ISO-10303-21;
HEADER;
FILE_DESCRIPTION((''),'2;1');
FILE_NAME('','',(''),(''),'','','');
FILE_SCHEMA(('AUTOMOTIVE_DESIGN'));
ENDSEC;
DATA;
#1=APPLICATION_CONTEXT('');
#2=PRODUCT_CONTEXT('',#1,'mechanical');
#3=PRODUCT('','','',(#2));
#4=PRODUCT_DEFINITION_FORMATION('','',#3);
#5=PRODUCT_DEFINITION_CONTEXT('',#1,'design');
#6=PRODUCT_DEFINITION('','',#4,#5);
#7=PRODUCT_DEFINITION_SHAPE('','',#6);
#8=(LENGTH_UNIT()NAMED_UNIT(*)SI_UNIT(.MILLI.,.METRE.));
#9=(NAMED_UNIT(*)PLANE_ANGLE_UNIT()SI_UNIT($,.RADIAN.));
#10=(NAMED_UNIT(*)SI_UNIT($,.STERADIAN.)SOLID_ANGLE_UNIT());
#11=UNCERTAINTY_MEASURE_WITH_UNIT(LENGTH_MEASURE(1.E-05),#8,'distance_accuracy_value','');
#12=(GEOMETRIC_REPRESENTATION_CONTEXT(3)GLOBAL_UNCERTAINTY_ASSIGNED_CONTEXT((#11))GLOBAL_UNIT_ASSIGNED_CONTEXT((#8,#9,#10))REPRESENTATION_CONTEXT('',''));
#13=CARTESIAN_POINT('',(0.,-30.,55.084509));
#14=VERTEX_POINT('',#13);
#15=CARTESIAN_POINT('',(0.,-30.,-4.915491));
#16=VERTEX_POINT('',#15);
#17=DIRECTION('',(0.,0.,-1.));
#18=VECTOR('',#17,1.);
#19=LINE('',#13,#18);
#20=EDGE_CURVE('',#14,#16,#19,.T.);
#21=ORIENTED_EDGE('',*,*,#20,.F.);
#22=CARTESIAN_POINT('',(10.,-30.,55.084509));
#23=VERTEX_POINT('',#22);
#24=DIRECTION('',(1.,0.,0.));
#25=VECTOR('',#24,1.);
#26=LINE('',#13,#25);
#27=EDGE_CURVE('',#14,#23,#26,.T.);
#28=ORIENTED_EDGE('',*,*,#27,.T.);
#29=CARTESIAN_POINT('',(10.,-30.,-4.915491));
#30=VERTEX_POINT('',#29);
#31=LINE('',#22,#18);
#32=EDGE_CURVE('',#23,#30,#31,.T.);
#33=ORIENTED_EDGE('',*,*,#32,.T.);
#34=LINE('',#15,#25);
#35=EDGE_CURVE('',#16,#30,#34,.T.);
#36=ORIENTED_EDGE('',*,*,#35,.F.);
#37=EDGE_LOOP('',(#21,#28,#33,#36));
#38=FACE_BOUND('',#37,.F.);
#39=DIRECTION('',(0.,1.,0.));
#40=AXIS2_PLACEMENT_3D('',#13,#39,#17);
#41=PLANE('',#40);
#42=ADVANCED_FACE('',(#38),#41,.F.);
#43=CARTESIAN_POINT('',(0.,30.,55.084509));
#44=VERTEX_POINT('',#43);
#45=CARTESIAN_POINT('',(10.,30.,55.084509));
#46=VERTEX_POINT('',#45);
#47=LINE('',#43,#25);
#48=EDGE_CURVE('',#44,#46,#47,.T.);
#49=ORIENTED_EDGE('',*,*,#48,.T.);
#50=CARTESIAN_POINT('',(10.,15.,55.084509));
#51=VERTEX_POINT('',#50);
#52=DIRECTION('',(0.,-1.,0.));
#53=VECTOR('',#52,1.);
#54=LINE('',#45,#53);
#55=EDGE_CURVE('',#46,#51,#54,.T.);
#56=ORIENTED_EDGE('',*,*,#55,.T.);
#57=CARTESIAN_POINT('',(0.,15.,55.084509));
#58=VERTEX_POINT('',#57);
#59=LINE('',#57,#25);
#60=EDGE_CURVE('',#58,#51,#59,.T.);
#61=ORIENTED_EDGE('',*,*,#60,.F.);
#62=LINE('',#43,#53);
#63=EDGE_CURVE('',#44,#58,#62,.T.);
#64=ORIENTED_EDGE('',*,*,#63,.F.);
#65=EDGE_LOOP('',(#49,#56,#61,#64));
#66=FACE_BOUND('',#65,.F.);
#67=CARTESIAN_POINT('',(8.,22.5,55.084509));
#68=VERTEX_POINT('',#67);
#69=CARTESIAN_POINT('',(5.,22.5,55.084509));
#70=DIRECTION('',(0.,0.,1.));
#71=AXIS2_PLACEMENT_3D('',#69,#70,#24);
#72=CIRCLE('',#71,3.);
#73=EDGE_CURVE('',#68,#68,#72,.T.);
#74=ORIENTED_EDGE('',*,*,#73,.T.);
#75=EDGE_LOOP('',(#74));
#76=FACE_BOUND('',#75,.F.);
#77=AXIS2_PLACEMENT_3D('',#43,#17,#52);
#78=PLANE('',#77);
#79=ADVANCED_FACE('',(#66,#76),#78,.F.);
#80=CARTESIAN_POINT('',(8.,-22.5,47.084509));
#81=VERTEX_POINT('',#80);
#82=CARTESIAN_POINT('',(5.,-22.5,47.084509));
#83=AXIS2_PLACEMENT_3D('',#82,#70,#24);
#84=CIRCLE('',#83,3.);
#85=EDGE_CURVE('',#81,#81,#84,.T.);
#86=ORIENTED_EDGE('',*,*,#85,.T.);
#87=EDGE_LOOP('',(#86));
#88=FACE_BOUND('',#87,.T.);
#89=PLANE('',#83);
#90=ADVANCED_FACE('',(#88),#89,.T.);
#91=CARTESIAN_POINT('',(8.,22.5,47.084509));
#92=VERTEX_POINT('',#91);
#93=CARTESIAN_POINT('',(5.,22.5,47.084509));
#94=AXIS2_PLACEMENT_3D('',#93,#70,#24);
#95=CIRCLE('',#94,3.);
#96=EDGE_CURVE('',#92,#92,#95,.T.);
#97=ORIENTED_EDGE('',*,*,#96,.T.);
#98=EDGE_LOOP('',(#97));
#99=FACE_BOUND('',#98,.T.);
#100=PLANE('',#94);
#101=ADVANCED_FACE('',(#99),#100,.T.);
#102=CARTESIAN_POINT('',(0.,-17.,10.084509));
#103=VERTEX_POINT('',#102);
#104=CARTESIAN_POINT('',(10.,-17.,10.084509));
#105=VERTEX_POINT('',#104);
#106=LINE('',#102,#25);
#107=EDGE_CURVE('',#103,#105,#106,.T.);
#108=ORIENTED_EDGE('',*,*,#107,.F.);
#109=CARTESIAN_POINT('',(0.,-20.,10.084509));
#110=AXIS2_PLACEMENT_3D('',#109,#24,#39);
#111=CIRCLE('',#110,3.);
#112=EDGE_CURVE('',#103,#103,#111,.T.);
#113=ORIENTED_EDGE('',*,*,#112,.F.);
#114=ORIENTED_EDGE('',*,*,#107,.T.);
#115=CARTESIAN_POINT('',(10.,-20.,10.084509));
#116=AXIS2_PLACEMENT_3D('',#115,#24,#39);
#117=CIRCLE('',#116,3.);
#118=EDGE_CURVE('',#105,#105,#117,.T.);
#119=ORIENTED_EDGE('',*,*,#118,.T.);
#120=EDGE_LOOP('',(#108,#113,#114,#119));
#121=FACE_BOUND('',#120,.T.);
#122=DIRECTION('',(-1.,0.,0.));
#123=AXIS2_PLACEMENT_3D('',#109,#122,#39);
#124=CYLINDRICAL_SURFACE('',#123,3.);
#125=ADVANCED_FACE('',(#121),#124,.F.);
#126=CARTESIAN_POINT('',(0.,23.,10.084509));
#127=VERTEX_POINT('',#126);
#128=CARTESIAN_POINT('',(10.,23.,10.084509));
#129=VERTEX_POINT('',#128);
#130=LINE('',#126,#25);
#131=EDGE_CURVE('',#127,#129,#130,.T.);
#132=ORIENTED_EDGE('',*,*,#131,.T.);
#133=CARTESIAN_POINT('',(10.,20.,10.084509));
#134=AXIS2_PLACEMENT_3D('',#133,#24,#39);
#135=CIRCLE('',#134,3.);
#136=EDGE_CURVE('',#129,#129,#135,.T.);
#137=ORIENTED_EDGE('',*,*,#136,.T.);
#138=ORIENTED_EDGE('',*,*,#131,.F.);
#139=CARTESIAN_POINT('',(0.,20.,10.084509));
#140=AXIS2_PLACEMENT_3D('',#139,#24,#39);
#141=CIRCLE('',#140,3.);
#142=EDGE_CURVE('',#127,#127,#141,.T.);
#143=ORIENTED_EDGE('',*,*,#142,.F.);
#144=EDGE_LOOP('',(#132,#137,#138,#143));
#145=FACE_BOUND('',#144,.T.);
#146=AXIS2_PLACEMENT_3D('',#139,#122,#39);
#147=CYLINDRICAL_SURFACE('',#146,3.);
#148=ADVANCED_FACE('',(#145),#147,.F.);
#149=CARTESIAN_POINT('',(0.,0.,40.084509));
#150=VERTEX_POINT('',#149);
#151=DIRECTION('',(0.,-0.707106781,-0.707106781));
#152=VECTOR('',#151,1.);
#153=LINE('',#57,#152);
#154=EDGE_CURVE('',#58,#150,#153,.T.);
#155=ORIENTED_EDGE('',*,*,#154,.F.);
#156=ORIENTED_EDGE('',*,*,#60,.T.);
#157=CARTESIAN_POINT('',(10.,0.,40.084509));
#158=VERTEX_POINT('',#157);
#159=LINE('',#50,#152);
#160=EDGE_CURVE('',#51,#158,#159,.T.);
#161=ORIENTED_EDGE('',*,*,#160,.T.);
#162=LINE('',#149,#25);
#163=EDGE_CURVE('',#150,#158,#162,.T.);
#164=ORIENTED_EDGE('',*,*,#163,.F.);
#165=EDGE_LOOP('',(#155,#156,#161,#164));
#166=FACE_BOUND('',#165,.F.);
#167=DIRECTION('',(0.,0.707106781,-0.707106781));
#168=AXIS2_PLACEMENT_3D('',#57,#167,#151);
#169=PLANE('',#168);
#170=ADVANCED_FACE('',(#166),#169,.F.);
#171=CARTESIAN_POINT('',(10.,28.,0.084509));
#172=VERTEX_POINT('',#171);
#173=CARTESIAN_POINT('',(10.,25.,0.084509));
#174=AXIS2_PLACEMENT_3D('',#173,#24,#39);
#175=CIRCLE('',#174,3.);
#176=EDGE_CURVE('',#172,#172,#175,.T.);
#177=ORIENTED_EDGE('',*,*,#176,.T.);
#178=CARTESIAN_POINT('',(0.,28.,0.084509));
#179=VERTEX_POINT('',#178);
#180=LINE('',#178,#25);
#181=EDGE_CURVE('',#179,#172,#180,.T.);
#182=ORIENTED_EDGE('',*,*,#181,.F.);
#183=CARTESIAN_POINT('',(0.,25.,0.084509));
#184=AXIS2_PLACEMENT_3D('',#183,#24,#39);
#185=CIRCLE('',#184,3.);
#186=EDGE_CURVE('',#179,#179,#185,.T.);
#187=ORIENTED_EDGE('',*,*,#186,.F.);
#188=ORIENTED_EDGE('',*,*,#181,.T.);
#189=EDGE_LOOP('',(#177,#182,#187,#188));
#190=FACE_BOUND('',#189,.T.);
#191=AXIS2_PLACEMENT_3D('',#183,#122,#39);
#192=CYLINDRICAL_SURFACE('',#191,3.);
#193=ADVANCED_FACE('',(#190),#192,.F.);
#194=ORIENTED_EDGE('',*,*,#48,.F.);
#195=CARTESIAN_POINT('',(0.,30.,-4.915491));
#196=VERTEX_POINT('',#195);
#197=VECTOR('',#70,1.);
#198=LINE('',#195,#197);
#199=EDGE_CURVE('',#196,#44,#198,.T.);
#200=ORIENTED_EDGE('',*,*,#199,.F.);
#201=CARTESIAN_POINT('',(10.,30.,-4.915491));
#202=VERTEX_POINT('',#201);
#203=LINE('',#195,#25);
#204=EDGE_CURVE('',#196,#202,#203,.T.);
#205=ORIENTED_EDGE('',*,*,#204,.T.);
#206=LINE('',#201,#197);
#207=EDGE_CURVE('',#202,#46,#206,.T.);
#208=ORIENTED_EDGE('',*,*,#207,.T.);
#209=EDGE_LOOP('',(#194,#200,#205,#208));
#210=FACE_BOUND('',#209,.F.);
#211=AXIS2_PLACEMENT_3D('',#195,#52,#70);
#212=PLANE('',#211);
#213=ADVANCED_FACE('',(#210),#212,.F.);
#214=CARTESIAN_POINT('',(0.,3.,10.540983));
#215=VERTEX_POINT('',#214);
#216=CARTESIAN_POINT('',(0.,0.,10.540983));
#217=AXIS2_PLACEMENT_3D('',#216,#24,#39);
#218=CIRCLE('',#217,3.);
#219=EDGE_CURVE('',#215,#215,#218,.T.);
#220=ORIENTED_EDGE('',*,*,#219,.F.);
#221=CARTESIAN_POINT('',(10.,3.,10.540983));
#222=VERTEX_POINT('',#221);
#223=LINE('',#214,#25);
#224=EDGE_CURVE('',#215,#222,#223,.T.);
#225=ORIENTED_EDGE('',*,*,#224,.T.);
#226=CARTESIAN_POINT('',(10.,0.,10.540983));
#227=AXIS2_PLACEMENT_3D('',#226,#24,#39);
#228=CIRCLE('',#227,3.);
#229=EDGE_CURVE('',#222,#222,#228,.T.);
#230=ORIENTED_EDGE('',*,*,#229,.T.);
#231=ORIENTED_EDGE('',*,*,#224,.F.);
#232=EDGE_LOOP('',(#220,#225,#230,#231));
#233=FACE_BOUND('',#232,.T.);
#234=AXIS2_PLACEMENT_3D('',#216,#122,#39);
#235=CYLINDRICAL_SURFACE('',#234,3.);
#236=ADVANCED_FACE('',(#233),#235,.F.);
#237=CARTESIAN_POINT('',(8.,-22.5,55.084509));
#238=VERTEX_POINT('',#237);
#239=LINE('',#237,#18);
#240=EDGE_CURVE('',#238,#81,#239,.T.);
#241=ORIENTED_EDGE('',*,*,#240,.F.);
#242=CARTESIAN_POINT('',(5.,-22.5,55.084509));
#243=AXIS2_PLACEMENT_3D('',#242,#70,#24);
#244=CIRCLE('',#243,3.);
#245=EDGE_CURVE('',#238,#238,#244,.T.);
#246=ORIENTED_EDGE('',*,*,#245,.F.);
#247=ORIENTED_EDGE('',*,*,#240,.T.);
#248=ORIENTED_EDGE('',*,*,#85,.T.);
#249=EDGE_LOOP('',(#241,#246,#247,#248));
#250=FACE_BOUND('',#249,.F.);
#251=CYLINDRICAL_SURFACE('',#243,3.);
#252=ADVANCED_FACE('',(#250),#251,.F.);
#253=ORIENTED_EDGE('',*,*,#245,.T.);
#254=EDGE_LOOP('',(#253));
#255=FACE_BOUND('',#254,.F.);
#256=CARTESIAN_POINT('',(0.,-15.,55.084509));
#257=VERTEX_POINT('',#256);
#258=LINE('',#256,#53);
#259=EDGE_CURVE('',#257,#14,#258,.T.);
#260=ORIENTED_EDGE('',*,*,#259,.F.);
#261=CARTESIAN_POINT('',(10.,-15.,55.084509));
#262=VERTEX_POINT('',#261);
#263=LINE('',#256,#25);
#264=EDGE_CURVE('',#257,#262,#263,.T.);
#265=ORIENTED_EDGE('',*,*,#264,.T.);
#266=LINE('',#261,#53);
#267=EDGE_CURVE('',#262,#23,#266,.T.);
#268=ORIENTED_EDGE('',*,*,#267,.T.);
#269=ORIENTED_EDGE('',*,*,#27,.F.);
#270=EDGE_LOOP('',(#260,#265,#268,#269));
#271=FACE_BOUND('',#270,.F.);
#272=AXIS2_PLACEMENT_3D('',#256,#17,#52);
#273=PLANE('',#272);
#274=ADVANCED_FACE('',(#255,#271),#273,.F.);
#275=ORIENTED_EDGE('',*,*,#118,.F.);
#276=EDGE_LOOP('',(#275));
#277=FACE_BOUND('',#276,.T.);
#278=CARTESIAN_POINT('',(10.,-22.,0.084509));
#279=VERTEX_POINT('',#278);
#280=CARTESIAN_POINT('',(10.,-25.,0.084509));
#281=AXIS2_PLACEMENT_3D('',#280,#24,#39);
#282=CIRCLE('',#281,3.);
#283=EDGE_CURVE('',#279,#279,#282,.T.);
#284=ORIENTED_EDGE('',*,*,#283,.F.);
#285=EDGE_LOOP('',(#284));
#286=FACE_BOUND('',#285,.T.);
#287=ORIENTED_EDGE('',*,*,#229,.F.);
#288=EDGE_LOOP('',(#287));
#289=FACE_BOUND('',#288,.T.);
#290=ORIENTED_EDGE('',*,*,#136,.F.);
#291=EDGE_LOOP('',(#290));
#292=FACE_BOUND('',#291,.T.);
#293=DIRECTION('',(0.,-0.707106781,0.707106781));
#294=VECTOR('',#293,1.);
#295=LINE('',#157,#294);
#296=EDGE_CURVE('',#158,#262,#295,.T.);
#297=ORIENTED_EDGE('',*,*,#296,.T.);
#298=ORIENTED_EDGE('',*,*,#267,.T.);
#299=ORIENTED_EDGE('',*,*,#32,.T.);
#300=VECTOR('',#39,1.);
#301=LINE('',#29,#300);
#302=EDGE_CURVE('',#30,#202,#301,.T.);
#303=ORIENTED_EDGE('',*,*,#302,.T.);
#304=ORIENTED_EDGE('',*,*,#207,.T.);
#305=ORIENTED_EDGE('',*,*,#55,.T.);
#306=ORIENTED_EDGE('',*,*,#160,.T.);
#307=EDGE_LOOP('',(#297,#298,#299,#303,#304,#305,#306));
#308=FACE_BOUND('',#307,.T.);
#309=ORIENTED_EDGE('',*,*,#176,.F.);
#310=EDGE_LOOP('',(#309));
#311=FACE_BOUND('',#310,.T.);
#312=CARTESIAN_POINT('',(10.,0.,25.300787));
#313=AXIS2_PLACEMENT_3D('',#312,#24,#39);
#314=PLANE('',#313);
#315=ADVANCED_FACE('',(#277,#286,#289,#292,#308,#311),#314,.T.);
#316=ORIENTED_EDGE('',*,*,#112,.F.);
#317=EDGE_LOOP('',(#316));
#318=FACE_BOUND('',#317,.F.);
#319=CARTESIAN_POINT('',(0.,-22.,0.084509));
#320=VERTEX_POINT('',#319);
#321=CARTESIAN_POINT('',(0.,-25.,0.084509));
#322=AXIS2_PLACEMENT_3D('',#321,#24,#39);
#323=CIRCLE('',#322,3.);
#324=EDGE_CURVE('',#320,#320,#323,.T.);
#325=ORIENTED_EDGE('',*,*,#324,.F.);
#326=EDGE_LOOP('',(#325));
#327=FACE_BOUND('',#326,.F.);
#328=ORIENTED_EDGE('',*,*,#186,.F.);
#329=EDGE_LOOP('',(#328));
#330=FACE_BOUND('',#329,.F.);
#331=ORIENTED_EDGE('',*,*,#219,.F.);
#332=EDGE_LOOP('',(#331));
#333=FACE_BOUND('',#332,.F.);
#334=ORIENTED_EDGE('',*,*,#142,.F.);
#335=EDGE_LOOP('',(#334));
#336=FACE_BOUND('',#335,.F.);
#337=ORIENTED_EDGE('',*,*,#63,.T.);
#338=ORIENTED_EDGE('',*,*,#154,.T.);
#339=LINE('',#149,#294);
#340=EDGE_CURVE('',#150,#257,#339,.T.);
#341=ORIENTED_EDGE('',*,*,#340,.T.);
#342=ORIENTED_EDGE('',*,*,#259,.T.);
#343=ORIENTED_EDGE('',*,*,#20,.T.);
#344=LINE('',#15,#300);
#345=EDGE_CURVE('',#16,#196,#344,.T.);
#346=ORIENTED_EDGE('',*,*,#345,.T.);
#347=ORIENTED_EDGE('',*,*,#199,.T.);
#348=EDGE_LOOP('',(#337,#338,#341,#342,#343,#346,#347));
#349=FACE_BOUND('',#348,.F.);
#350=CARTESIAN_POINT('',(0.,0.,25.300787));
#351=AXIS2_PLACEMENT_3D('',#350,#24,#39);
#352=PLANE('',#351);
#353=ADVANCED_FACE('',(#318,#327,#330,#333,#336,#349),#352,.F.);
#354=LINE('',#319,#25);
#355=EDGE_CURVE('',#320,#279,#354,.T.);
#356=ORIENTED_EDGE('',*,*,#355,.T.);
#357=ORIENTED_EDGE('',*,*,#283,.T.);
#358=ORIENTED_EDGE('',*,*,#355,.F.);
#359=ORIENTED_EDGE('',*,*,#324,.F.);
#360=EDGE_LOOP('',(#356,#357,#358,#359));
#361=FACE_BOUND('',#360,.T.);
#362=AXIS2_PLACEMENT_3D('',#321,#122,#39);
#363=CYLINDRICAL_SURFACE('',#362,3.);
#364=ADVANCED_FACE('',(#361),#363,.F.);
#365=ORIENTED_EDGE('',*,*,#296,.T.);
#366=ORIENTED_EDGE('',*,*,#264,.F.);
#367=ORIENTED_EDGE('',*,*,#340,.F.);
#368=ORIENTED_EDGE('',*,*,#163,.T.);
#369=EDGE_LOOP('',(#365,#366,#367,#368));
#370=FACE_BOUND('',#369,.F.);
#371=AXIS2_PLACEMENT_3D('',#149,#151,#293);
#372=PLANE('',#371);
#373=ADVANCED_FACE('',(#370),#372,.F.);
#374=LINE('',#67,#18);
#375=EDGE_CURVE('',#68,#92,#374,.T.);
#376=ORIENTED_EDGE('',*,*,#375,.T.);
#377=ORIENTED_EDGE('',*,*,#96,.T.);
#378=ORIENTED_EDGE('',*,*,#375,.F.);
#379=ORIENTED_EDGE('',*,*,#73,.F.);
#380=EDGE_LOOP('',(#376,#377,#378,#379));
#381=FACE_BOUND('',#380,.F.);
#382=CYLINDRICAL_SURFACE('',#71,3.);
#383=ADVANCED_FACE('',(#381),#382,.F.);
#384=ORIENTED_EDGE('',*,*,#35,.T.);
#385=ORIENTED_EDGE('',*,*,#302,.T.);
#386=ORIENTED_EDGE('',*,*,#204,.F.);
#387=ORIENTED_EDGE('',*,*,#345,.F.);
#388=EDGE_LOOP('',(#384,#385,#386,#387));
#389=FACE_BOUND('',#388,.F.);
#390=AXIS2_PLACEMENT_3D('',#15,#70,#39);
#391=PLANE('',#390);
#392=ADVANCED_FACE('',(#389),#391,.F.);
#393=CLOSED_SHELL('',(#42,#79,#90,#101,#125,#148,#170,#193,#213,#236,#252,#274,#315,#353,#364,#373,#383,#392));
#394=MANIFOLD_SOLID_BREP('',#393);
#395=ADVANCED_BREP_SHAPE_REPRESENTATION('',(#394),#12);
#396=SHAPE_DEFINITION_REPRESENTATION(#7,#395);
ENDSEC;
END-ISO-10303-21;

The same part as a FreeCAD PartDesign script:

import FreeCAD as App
import Part
import Sketcher
from FreeCAD import Vector
Q = App.Units.Quantity

doc = App.newDocument("Part")
body = doc.addObject("PartDesign::Body", "Body")

# Sketch on YZ plane
sketch1 = body.newObject("Sketcher::SketchObject", "Sketch")
sketch1.AttachmentSupport = (doc.getObject("YZ_Plane"), [""])
sketch1.MapMode = "FlatFace"
sketch1.addGeometry(Part.LineSegment(Vector(-30, 55.1, 0), Vector(-30, -4.9, 0)), False)
sketch1.addGeometry(Part.LineSegment(Vector(-30, -4.9, 0), Vector(30, -4.9, 0)), False)
sketch1.addGeometry(Part.LineSegment(Vector(30, -4.9, 0), Vector(30, 55.1, 0)), False)
sketch1.addGeometry(Part.LineSegment(Vector(30, 55.1, 0), Vector(15, 55.1, 0)), False)
sketch1.addGeometry(Part.LineSegment(Vector(15, 55.1, 0), Vector(0, 40.1, 0)), False)
sketch1.addGeometry(Part.LineSegment(Vector(0, 40.1, 0), Vector(-15, 55.1, 0)), False)
sketch1.addGeometry(Part.LineSegment(Vector(-15, 55.1, 0), Vector(-30, 55.1, 0)), False)
sketch1.addGeometry(Part.Circle(Vector(-25, 0.1, 0), Vector(0, 0, 1), 3), False)
sketch1.addGeometry(Part.Circle(Vector(25, 0.1, 0), Vector(0, 0, 1), 3), False)
sketch1.addGeometry(Part.Circle(Vector(-20, 10.1, 0), Vector(0, 0, 1), 3), False)
sketch1.addGeometry(Part.Circle(Vector(0, 10.5, 0), Vector(0, 0, 1), 3), False)
sketch1.addGeometry(Part.Circle(Vector(20, 10.1, 0), Vector(0, 0, 1), 3), False)
sketch1.addConstraint(Sketcher.Constraint("Coincident", 0, 2, 1, 1))
sketch1.addConstraint(Sketcher.Constraint("Coincident", 1, 2, 2, 1))
sketch1.addConstraint(Sketcher.Constraint("Coincident", 2, 2, 3, 1))
sketch1.addConstraint(Sketcher.Constraint("Coincident", 3, 2, 4, 1))
sketch1.addConstraint(Sketcher.Constraint("Coincident", 4, 2, 5, 1))
sketch1.addConstraint(Sketcher.Constraint("Coincident", 5, 2, 6, 1))
sketch1.addConstraint(Sketcher.Constraint("Coincident", 6, 2, 0, 1))
sketch1.addConstraint(Sketcher.Constraint("Vertical", 0))
sketch1.addConstraint(Sketcher.Constraint("Horizontal", 1))
sketch1.addConstraint(Sketcher.Constraint("Vertical", 2))
sketch1.addConstraint(Sketcher.Constraint("Horizontal", 3))
sketch1.addConstraint(Sketcher.Constraint("Horizontal", 6))
sketch1.addConstraint(Sketcher.Constraint("Equal", 7, 8))
sketch1.addConstraint(Sketcher.Constraint("Equal", 8, 9))
sketch1.addConstraint(Sketcher.Constraint("Equal", 9, 10))
sketch1.addConstraint(Sketcher.Constraint("Equal", 10, 11))
sketch1.addConstraint(Sketcher.Constraint("Symmetric", 7, 3, 8, 3, -2))
sketch1.addConstraint(Sketcher.Constraint("Symmetric", 9, 3, 11, 3, -2))
sketch1.addConstraint(Sketcher.Constraint("Symmetric", 3, 2, 5, 2, -2))
sketch1.addConstraint(Sketcher.Constraint("PointOnObject", 10, 3, -2))
sketch1.addConstraint(Sketcher.Constraint("PointOnObject", 4, 2, -2))
sketch1.addConstraint(Sketcher.Constraint("Perpendicular", 4, 5))
sketch1.addConstraint(Sketcher.Constraint("Equal", 3, 6))
sketch1.addConstraint(Sketcher.Constraint("Equal", 1, 0))
sketch1.addConstraint(Sketcher.Constraint("Diameter", 7, Q("6 mm")))
sketch1.addConstraint(Sketcher.Constraint("DistanceX", 1, 1, 1, 2, Q("60 mm")))
sketch1.addConstraint(Sketcher.Constraint("DistanceX", 3, 2, 3, 1, Q("15 mm")))
sketch1.addConstraint(Sketcher.Constraint("DistanceX", 7, 3, -1, 1, Q("25 mm")))
sketch1.addConstraint(Sketcher.Constraint("DistanceX", 9, 3, -1, 1, Q("20 mm")))
sketch1.addConstraint(Sketcher.Constraint("DistanceY", 7, 3, 9, 3, Q("10 mm")))
sketch1.addConstraint(Sketcher.Constraint("DistanceY", 0, 2, 7, 3, Q("5 mm")))
sketch1.addConstraint(Sketcher.Constraint("DistanceY", -1, 1, 7, 3, Q("0.084509 mm")))
sketch1.addConstraint(Sketcher.Constraint("DistanceY", -1, 1, 10, 3, Q("10.540983 mm")))
pad1 = body.newObject("PartDesign::Pad", "Pad")
pad1.Profile = sketch1
pad1.Length = 10

# Sketch on XY plane
sketch2 = body.newObject("Sketcher::SketchObject", "Sketch001")
sketch2.AttachmentSupport = (doc.getObject("XY_Plane"), [""])
sketch2.MapMode = "FlatFace"
sketch2.AttachmentOffset = App.Placement(Vector(0, 0, 55.084509), App.Rotation())
sketch2.addGeometry(Part.Circle(Vector(5, 22.5, 0), Vector(0, 0, 1), 3), False)
sketch2.addGeometry(Part.Circle(Vector(5, -22.5, 0), Vector(0, 0, 1), 3), False)
sketch2.addConstraint(Sketcher.Constraint("Equal", 0, 1))
sketch2.addConstraint(Sketcher.Constraint("Symmetric", 0, 3, 1, 3, -1))
sketch2.addConstraint(Sketcher.Constraint("Diameter", 0, Q("6 mm")))
sketch2.addConstraint(Sketcher.Constraint("DistanceX", -1, 1, 0, 3, Q("5 mm")))
sketch2.addConstraint(Sketcher.Constraint("DistanceY", 1, 3, 0, 3, Q("45 mm")))
pocket1 = body.newObject("PartDesign::Pocket", "Pocket")
pocket1.Profile = sketch2
pocket1.Length = 8

doc.recompute()
